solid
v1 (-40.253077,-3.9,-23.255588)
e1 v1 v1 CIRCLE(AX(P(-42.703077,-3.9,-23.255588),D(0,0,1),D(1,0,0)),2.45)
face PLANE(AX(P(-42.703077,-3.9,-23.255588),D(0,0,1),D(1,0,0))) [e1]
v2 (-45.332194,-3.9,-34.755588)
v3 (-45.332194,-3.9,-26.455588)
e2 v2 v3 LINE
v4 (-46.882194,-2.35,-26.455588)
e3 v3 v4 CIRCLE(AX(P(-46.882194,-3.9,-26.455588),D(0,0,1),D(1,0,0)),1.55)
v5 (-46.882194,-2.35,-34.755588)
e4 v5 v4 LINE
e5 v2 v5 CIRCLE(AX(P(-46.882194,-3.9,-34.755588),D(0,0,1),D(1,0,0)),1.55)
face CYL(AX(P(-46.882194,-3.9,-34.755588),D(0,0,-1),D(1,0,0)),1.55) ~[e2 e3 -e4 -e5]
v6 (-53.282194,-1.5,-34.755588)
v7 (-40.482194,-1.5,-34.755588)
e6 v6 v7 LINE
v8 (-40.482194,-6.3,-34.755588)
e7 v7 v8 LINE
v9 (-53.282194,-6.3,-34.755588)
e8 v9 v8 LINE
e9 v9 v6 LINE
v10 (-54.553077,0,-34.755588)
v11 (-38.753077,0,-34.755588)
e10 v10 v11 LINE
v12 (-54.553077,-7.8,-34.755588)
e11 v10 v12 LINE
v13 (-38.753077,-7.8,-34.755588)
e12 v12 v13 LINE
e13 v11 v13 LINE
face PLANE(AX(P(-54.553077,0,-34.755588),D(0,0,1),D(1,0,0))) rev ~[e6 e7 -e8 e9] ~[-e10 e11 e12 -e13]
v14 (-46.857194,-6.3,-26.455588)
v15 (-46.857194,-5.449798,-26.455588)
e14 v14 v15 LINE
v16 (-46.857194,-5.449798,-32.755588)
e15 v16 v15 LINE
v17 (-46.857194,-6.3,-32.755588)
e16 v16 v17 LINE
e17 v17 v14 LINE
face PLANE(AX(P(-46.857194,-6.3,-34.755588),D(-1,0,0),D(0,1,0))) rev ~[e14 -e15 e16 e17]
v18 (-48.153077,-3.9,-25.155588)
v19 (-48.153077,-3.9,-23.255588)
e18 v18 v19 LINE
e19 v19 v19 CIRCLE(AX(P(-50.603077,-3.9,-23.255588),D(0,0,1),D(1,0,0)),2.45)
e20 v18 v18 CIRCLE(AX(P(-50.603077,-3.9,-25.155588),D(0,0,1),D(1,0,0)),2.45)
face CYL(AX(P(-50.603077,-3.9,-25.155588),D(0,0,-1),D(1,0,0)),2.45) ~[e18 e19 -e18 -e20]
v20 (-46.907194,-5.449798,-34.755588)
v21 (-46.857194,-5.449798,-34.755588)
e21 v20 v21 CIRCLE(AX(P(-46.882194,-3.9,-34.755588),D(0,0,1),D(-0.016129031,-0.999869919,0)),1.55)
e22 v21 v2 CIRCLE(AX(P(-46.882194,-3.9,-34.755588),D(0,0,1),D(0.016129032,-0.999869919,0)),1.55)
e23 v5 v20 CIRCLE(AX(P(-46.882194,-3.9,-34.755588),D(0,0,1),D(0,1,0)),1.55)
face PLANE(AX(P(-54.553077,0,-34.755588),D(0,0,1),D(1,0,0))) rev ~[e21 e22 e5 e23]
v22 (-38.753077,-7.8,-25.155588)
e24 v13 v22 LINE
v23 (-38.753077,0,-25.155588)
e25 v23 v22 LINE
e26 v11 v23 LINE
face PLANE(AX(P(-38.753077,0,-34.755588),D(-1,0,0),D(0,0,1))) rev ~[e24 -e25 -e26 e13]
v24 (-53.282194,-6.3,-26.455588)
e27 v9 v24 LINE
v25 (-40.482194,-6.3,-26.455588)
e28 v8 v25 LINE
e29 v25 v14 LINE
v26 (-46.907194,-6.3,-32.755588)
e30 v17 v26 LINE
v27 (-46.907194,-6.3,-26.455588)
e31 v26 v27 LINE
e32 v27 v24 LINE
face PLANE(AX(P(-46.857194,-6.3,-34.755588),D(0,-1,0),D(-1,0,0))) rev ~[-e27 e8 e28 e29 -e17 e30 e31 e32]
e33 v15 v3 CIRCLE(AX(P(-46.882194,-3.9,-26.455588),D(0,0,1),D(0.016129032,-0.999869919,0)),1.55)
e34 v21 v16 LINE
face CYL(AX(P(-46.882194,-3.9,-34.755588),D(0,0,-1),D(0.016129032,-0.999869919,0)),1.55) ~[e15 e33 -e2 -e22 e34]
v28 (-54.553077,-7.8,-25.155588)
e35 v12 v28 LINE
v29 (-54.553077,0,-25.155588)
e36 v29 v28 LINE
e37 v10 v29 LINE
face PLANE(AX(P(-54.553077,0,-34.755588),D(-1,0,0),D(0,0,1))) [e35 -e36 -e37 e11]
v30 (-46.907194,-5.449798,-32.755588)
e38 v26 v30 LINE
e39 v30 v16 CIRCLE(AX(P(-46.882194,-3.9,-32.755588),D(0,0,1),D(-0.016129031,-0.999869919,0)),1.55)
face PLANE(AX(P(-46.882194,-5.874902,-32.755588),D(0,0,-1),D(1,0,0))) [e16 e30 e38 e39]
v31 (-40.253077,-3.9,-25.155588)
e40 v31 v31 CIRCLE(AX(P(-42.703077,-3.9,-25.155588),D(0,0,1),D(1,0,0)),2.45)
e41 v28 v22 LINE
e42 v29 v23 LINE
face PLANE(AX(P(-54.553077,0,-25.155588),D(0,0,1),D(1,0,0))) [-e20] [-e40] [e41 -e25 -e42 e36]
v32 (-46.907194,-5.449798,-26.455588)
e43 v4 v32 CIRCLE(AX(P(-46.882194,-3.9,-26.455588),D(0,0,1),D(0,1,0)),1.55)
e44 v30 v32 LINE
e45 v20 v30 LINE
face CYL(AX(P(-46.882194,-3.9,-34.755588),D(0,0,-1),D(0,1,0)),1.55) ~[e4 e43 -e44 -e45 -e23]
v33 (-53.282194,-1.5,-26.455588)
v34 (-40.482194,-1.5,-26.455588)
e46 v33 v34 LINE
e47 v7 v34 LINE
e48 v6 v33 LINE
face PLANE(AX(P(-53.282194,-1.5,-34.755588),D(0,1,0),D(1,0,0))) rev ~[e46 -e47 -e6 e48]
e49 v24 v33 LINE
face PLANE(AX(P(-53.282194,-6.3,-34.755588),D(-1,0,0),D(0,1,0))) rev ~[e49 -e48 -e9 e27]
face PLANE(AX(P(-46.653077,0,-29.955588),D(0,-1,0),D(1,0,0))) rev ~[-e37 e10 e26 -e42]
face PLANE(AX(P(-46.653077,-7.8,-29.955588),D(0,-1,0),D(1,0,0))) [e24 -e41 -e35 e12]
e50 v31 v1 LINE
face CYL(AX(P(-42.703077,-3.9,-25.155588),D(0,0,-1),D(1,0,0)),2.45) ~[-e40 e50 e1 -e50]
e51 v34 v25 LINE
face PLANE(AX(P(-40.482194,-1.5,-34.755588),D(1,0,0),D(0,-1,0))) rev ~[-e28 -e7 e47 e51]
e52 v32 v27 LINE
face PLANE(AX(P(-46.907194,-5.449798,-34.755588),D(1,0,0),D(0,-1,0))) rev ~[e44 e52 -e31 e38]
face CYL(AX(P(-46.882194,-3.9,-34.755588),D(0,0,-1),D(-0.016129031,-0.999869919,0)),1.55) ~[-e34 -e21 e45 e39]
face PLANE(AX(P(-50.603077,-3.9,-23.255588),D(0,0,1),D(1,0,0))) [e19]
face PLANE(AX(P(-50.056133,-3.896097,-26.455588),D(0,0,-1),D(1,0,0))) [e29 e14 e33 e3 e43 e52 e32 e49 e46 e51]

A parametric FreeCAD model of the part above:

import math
import FreeCAD as App
import Part
import Sketcher

V = App.Vector
Q = App.Units.Quantity


def add_polygon(sketch, points):
    """Adds a closed chain of lines whose ends are joined by coincident constraints."""
    first, n = sketch.GeometryCount, len(points)
    for a, b in zip(points, points[1:] + points[:1]):
        sketch.addGeometry(Part.LineSegment(App.Vector(*a, 0), App.Vector(*b, 0)), False)
    for i in range(n):
        sketch.addConstraint(Sketcher.Constraint("Coincident", first + i, 2, first + (i + 1) % n, 1))

doc = App.newDocument("Part")
body = doc.addObject("PartDesign::Body", "Body")

# Sketch on XZ plane
sketch1 = body.newObject("Sketcher::SketchObject", "Sketch")
sketch1.AttachmentSupport = (doc.getObject("XZ_Plane"), [""])
sketch1.MapMode = "FlatFace"
add_polygon(sketch1, [(-55, -25), (-55, -35), (-39, -35), (-39, -25)])  # lines 0-3
sketch1.addConstraint([
    Sketcher.Constraint("Vertical", 0),
    Sketcher.Constraint("Horizontal", 1),
    Sketcher.Constraint("Vertical", 2),
    Sketcher.Constraint("Horizontal", 3),
    Sketcher.Constraint("DistanceX", 1, 1, 1, 2, Q("15.8 mm")),
    Sketcher.Constraint("DistanceY", 0, 2, 0, 1, Q("9.6 mm")),
    Sketcher.Constraint("DistanceX", 0, 2, -1, 1, Q("54.553077 mm")),
    Sketcher.Constraint("DistanceY", 0, 2, -1, 1, Q("34.755588 mm")),
])
pad1 = body.newObject("PartDesign::Pad", "Pad")
pad1.Profile = sketch1
pad1.Length = 7.8

# Sketch on XY plane
sketch2 = body.newObject("Sketcher::SketchObject", "Sketch001")
sketch2.AttachmentSupport = (doc.getObject("XY_Plane"), [""])
sketch2.MapMode = "FlatFace"
sketch2.AttachmentOffset = App.Placement(V(0, 0, -25.155588), App.Rotation())
sketch2.addGeometry([
    Part.Circle(V(-50.6, -3.9, 0), V(0, 0, 1), 2.5),
    Part.Circle(V(-42.7, -3.9, 0), V(0, 0, 1), 2.5),
], False)
sketch2.addConstraint([
    Sketcher.Constraint("Equal", 0, 1),
    Sketcher.Constraint("Horizontal", 0, 3, 1, 3),
    Sketcher.Constraint("Diameter", 0, Q("4.9 mm")),
    Sketcher.Constraint("DistanceY", 0, 3, -1, 1, Q("3.9 mm")),
    Sketcher.Constraint("DistanceX", 0, 3, 1, 3, Q("7.9 mm")),
    Sketcher.Constraint("DistanceX", 0, 3, -1, 1, Q("50.603077 mm")),
])
pad2 = body.newObject("PartDesign::Pad", "Pad001")
pad2.Profile = sketch2
pad2.Length = 1.9

# Sketch on XY plane
sketch3 = body.newObject("Sketcher::SketchObject", "Sketch002")
sketch3.AttachmentSupport = (doc.getObject("XY_Plane"), [""])
sketch3.MapMode = "FlatFace"
sketch3.AttachmentOffset = App.Placement(V(0, 0, -34.755588), App.Rotation())
sketch3.addGeometry([
    Part.LineSegment(V(-53.3, -6.3, 0), V(-53.3, -1.5, 0)),  # 0
    Part.LineSegment(V(-53.3, -1.5, 0), V(-40.5, -1.5, 0)),  # 1
    Part.LineSegment(V(-40.5, -1.5, 0), V(-40.5, -6.3, 0)),  # 2
    Part.LineSegment(V(-40.5, -6.3, 0), V(-46.9, -6.3, 0)),  # 3
    Part.LineSegment(V(-46.9, -6.3, 0), V(-46.9, -5.4, 0)),  # 4
    Part.ArcOfCircle(Part.Circle(V(-46.9, -3.9, 0), V(0, 0, 1), 1.6), math.radians(-89), math.radians(0)),  # 5
    Part.ArcOfCircle(Part.Circle(V(-46.9, -3.9, 0), V(0, 0, 1), 1.6), math.radians(0), math.radians(90)),  # 6
    Part.ArcOfCircle(Part.Circle(V(-46.9, -3.9, 0), V(0, 0, 1), 1.6), math.radians(90), math.radians(269)),  # 7
    Part.LineSegment(V(-46.9, -5.4, 0), V(-46.9, -6.3, 0)),  # 8
    Part.LineSegment(V(-46.9, -6.3, 0), V(-53.3, -6.3, 0)),  # 9
], False)
sketch3.addConstraint([
    Sketcher.Constraint("Coincident", 0, 2, 1, 1),
    Sketcher.Constraint("Coincident", 1, 2, 2, 1),
    Sketcher.Constraint("Coincident", 2, 2, 3, 1),
    Sketcher.Constraint("Coincident", 3, 2, 4, 1),
    Sketcher.Constraint("Coincident", 4, 2, 5, 1),
    Sketcher.Constraint("Tangent", 5, 2, 6, 1),
    Sketcher.Constraint("Tangent", 6, 2, 7, 1),
    Sketcher.Constraint("Coincident", 7, 2, 8, 1),
    Sketcher.Constraint("Coincident", 8, 2, 9, 1),
    Sketcher.Constraint("Coincident", 9, 2, 0, 1),
    Sketcher.Constraint("Vertical", 0),
    Sketcher.Constraint("Horizontal", 1),
    Sketcher.Constraint("Vertical", 2),
    Sketcher.Constraint("Horizontal", 3),
    Sketcher.Constraint("Vertical", 4),
    Sketcher.Constraint("Vertical", 8),
    Sketcher.Constraint("Horizontal", 9),
    Sketcher.Constraint("Coincident", 7, 3, 5, 3),
    Sketcher.Constraint("Horizontal", 7, 3, 5, 2),
    Sketcher.Constraint("Horizontal", 4, 2, 7, 2),
    Sketcher.Constraint("Horizontal", 3, 2, 8, 2),
    Sketcher.Constraint("Vertical", 7, 3, 6, 2),
    Sketcher.Constraint("Equal", 3, 9),
    Sketcher.Constraint("Radius", 5, Q("1.55 mm")),
    Sketcher.Constraint("DistanceX", 1, 1, 1, 2, Q("12.8 mm")),
    Sketcher.Constraint("DistanceY", 0, 1, 0, 2, Q("4.8 mm")),
    Sketcher.Constraint("DistanceY", 5, 3, -1, 1, Q("3.9 mm")),
    Sketcher.Constraint("DistanceY", 0, 2, -1, 1, Q("1.5 mm")),
    Sketcher.Constraint("DistanceX", 3, 2, 3, 1, Q("6.375 mm")),
    Sketcher.Constraint("DistanceX", 5, 3, -1, 1, Q("46.882194 mm")),
])
pocket1 = body.newObject("PartDesign::Pocket", "Pocket")
pocket1.Profile = sketch3
pocket1.Length = 8.3
pocket1.Reversed = True

# Sketch on XY plane
sketch4 = body.newObject("Sketcher::SketchObject", "Sketch003")
sketch4.AttachmentSupport = (doc.getObject("XY_Plane"), [""])
sketch4.MapMode = "FlatFace"
sketch4.AttachmentOffset = App.Placement(V(0, 0, -34.755588), App.Rotation())
sketch4.addGeometry([
    Part.LineSegment(V(-46.857, -6.3, 0), V(-46.907, -6.3, 0)),
    Part.LineSegment(V(-46.907, -6.3, 0), V(-46.907, -5.45, 0)),
    Part.ArcOfCircle(Part.Circle(V(-46.882, -3.9, 0), V(0, 0, 1), 1.55), math.radians(-90.92), math.radians(-89.08)),
    Part.LineSegment(V(-46.857, -5.45, 0), V(-46.857, -6.3, 0)),
], False)
sketch4.addConstraint([
    Sketcher.Constraint("Coincident", 0, 2, 1, 1),
    Sketcher.Constraint("Coincident", 1, 2, 2, 1),
    Sketcher.Constraint("Coincident", 2, 2, 3, 1),
    Sketcher.Constraint("Coincident", 3, 2, 0, 1),
    Sketcher.Constraint("Horizontal", 0),
    Sketcher.Constraint("Vertical", 1),
    Sketcher.Constraint("Vertical", 3),
    Sketcher.Constraint("Horizontal", 1, 2, 2, 2),
    Sketcher.Constraint("Radius", 2, Q("1.55 mm")),
    Sketcher.Constraint("DistanceX", 0, 2, 0, 1, Q("0.05 mm")),
    Sketcher.Constraint("DistanceY", 2, 3, -1, 1, Q("3.9 mm")),
    Sketcher.Constraint("DistanceY", 0, 2, -1, 1, Q("6.3 mm")),
    Sketcher.Constraint("DistanceX", 2, 3, -1, 1, Q("46.882194 mm")),
])
pocket2 = body.newObject("PartDesign::Pocket", "Pocket001")
pocket2.Profile = sketch4
pocket2.Length = 2
pocket2.Reversed = True

doc.recompute()
